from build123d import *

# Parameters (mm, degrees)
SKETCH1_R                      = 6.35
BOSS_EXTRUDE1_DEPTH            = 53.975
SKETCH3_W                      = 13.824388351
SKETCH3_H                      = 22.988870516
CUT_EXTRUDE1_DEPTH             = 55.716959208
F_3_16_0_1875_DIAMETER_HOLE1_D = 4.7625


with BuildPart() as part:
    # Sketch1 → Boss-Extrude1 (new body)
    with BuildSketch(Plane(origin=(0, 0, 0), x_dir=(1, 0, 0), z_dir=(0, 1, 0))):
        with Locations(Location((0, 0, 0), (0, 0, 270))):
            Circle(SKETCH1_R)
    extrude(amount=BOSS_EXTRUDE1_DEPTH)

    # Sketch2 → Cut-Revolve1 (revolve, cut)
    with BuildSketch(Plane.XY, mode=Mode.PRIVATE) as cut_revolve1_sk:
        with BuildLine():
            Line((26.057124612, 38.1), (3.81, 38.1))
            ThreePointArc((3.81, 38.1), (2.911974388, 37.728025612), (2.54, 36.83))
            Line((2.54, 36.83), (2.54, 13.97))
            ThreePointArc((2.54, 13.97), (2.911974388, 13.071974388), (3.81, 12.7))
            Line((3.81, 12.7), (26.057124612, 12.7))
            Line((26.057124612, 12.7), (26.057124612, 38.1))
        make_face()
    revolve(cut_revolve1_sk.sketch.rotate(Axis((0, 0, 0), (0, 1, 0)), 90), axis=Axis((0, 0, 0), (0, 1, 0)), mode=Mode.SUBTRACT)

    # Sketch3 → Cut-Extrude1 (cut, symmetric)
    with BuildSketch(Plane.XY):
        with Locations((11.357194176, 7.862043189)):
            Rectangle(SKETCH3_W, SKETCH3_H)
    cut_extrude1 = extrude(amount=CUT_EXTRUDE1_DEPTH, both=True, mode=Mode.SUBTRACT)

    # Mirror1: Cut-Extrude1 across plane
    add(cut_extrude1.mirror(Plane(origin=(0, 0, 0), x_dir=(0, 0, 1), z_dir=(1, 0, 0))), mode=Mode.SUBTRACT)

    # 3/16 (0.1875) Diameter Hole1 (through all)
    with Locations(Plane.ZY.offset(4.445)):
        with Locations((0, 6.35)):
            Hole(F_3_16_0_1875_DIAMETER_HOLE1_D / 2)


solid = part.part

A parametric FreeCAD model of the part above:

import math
import FreeCAD as App
import Part
import Sketcher

V = App.Vector
Q = App.Units.Quantity

doc = App.newDocument("Part")
params = doc.addObject("Spreadsheet::Sheet", "Params")
for row, (alias, value) in enumerate([
    ("sketch1_diameter", "0.5 in"),
    ("pad1_length", "2.125 in"),
    ("sketch2_height", "1 in"),
    ("sketch2_radius", "0.05 in"),
    ("groove_angle", "360 deg"),
    ("pocket1_length", "111.433918 mm"),
    ("sketch4_diameter", "0.1875 in"),
    ("hole_diameter", "0.1875 in"),
], start=1):
    params.set(f"A{row}", alias)
    params.set(f"B{row}", "=" + value)
    params.setAlias(f"B{row}", alias)

body = doc.addObject("PartDesign::Body", "Body")

# Sketch on XZ plane
sketch1 = body.newObject("Sketcher::SketchObject", "Sketch")
sketch1.AttachmentSupport = (doc.getObject("XZ_Plane"), [""])
sketch1.MapMode = "FlatFace"
sketch1.addGeometry(Part.Circle(V(0, 0, 0), V(0, 0, 1), 6), False)
sketch1.addConstraint([
    Sketcher.Constraint("Coincident", 0, 3, -1, 1),
    Sketcher.Constraint("Diameter", 0, Q("0.5 in")),
])
sketch1.setExpression("Constraints[1]", "Params.sketch1_diameter")
pad1 = body.newObject("PartDesign::Pad", "Pad")
pad1.Profile = sketch1
pad1.setExpression("Length", "Params.pad1_length")
pad1.Reversed = True

# Sketch on XY plane
sketch2 = body.newObject("Sketcher::SketchObject", "Sketch001")
sketch2.AttachmentSupport = (doc.getObject("XY_Plane"), [""])
sketch2.MapMode = "FlatFace"
sketch2.addGeometry([
    Part.LineSegment(V(26.1, 38.1, 0), V(3.8, 38.1, 0)),  # 0
    Part.ArcOfCircle(Part.Circle(V(3.8, 36.8, 0), V(0, 0, 1), 1.3), math.radians(90), math.radians(180)),  # 1
    Part.LineSegment(V(2.5, 36.8, 0), V(2.5, 14, 0)),  # 2
    Part.ArcOfCircle(Part.Circle(V(3.8, 14, 0), V(0, 0, 1), 1.3), math.radians(180), math.radians(270)),  # 3
    Part.LineSegment(V(3.8, 12.7, 0), V(26.1, 12.7, 0)),  # 4
    Part.LineSegment(V(26.1, 12.7, 0), V(26.1, 38.1, 0)),  # 5
], False)
sketch2.addConstraint([
    Sketcher.Constraint("Tangent", 0, 2, 1, 1),
    Sketcher.Constraint("Tangent", 1, 2, 2, 1),
    Sketcher.Constraint("Tangent", 2, 2, 3, 1),
    Sketcher.Constraint("Tangent", 3, 2, 4, 1),
    Sketcher.Constraint("Coincident", 4, 2, 5, 1),
    Sketcher.Constraint("Coincident", 5, 2, 0, 1),
    Sketcher.Constraint("Horizontal", 0),
    Sketcher.Constraint("Vertical", 2),
    Sketcher.Constraint("Horizontal", 4),
    Sketcher.Constraint("Vertical", 5),
    Sketcher.Constraint("Equal", 1, 3),
    Sketcher.Constraint("DistanceY", 5, 1, 5, 2, Q("1 in")),
    Sketcher.Constraint("Radius", 1, Q("0.05 in")),
    Sketcher.Constraint("DistanceY", -1, 1, 0, 2, Q("1.5 in")),
    Sketcher.Constraint("DistanceX", -1, 1, 1, 2, Q("0.1 in")),
    Sketcher.Constraint("DistanceX", 0, 2, 0, 1, Q("22.247125 mm")),
])
sketch2.setExpression("Constraints[11]", "Params.sketch2_height")
sketch2.setExpression("Constraints[12]", "Params.sketch2_radius")
groove = body.newObject("PartDesign::Groove", "Groove")
groove.Profile = sketch2
groove.ReferenceAxis = (sketch2, ["V_Axis"])
groove.setExpression("Angle", "Params.groove_angle")

# Sketch on XY plane
sketch3 = body.newObject("Sketcher::SketchObject", "Sketch002")
sketch3.AttachmentSupport = (doc.getObject("XY_Plane"), [""])
sketch3.MapMode = "FlatFace"
sketch3.addGeometry([
    Part.LineSegment(V(4, 19, 0), V(4, -4, 0)),
    Part.LineSegment(V(4, -4, 0), V(18, -4, 0)),
    Part.LineSegment(V(18, -4, 0), V(18, 19, 0)),
    Part.LineSegment(V(18, 19, 0), V(4, 19, 0)),
], False)
sketch3.addConstraint([
    Sketcher.Constraint("Coincident", 0, 2, 1, 1),
    Sketcher.Constraint("Coincident", 1, 2, 2, 1),
    Sketcher.Constraint("Coincident", 2, 2, 3, 1),
    Sketcher.Constraint("Coincident", 3, 2, 0, 1),
    Sketcher.Constraint("Vertical", 0),
    Sketcher.Constraint("Horizontal", 1),
    Sketcher.Constraint("Vertical", 2),
    Sketcher.Constraint("Horizontal", 3),
    Sketcher.Constraint("DistanceX", -1, 1, 0, 2, Q("0.175 in")),
    Sketcher.Constraint("DistanceX", 1, 1, 1, 2, Q("13.824388 mm")),
    Sketcher.Constraint("DistanceY", 0, 2, 0, 1, Q("22.988871 mm")),
    Sketcher.Constraint("DistanceY", -1, 1, 2, 2, Q("19.356478 mm")),
])
pocket1 = body.newObject("PartDesign::Pocket", "Pocket")
pocket1.Profile = sketch3
pocket1.setExpression("Length", "Params.pocket1_length")
pocket1.Midplane = True
doc.recompute()

mirrored = body.newObject("PartDesign::Mirrored", "Mirrored")
mirrored.Originals = [pocket1]
mirrored.MirrorPlane = (doc.getObject("YZ_Plane"), [""])
body.Tip = mirrored

# Sketch on YZ plane
sketch4 = body.newObject("Sketcher::SketchObject", "Sketch003")
sketch4.AttachmentSupport = (doc.getObject("YZ_Plane"), [""])
sketch4.MapMode = "FlatFace"
sketch4.AttachmentOffset = App.Placement(V(0, 0, -0.175 * 25.4), App.Rotation())
sketch4.addGeometry(Part.Circle(V(6.3, 0, 0), V(0, 0, 1), 2.4), False)
sketch4.addConstraint([
    Sketcher.Constraint("PointOnObject", 0, 3, -1),
    Sketcher.Constraint("Diameter", 0, Q("0.1875 in")),
    Sketcher.Constraint("DistanceX", -1, 1, 0, 3, Q("0.25 in")),
])
sketch4.setExpression("Constraints[1]", "Params.sketch4_diameter")
doc.recompute()
hole = body.newObject("PartDesign::Hole", "Hole")
hole.Profile = sketch4
hole.ThreadType = "None"
hole.setExpression("Diameter", "Params.hole_diameter")
hole.DepthType = "ThroughAll"
hole.Reversed = True

doc.recompute()
